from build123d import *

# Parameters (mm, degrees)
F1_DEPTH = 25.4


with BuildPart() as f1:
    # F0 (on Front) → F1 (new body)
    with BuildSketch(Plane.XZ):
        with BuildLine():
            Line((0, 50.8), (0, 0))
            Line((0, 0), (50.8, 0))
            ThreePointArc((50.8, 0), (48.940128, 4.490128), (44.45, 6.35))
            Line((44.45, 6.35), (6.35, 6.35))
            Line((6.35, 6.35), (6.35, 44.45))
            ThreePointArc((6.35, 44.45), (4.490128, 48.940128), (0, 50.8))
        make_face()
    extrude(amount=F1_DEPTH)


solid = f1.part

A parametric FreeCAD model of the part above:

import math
import FreeCAD as App
import Part
import Sketcher

V = App.Vector
Q = App.Units.Quantity

doc = App.newDocument("Part")
body = doc.addObject("PartDesign::Body", "Body")

# Sketch on XZ plane
sketch1 = doc.addObject("Sketcher::SketchObject", "Sketch")
body.addObject(sketch1)
sketch1.AttachmentSupport = (doc.XZ_Plane, [""])
sketch1.MapMode = "FlatFace"
sketch1.addGeometry(Part.LineSegment(V(0, 51, 0), V(0, 0, 0)), False)
sketch1.addGeometry(Part.LineSegment(V(0, 0, 0), V(51, 0, 0)), False)
sketch1.addGeometry(Part.ArcOfCircle(Part.Circle(V(44, 0, 0), V(0, 0, 1), 6), math.radians(0), math.radians(90)), False)
sketch1.addGeometry(Part.LineSegment(V(44, 6, 0), V(6, 6, 0)), False)
sketch1.addGeometry(Part.LineSegment(V(6, 6, 0), V(6, 44, 0)), False)
sketch1.addGeometry(Part.ArcOfCircle(Part.Circle(V(0, 44, 0), V(0, 0, 1), 6), math.radians(0), math.radians(90)), False)
sketch1.addConstraint(Sketcher.Constraint("Coincident", 0, 2, 1, 1))
sketch1.addConstraint(Sketcher.Constraint("Coincident", 1, 2, 2, 1))
sketch1.addConstraint(Sketcher.Constraint("Tangent", 2, 2, 3, 1))
sketch1.addConstraint(Sketcher.Constraint("Coincident", 3, 2, 4, 1))
sketch1.addConstraint(Sketcher.Constraint("Tangent", 4, 2, 5, 1))
sketch1.addConstraint(Sketcher.Constraint("Coincident", 5, 2, 0, 1))
sketch1.addConstraint(Sketcher.Constraint("Vertical", 0))
sketch1.addConstraint(Sketcher.Constraint("Horizontal", 1))
sketch1.addConstraint(Sketcher.Constraint("Horizontal", 3))
sketch1.addConstraint(Sketcher.Constraint("Vertical", 4))
sketch1.addConstraint(Sketcher.Constraint("Coincident", 0, 2, -1, 1))
sketch1.addConstraint(Sketcher.Constraint("Equal", 2, 5))
sketch1.addConstraint(Sketcher.Constraint("PointOnObject", 2, 3, -1))
sketch1.addConstraint(Sketcher.Constraint("PointOnObject", 5, 3, -2))
sketch1.addConstraint(Sketcher.Constraint("Equal", 1, 0))
sketch1.addConstraint(Sketcher.Constraint("DistanceX", 1, 1, 1, 2, Q("2 in")))
sketch1.addConstraint(Sketcher.Constraint("Radius", 2, Q("0.25 in")))
pad1 = doc.addObject("PartDesign::Pad", "Pad")
body.addObject(pad1)
pad1.Profile = sketch1
pad1.Length = Q("1 in")

doc.recompute()
